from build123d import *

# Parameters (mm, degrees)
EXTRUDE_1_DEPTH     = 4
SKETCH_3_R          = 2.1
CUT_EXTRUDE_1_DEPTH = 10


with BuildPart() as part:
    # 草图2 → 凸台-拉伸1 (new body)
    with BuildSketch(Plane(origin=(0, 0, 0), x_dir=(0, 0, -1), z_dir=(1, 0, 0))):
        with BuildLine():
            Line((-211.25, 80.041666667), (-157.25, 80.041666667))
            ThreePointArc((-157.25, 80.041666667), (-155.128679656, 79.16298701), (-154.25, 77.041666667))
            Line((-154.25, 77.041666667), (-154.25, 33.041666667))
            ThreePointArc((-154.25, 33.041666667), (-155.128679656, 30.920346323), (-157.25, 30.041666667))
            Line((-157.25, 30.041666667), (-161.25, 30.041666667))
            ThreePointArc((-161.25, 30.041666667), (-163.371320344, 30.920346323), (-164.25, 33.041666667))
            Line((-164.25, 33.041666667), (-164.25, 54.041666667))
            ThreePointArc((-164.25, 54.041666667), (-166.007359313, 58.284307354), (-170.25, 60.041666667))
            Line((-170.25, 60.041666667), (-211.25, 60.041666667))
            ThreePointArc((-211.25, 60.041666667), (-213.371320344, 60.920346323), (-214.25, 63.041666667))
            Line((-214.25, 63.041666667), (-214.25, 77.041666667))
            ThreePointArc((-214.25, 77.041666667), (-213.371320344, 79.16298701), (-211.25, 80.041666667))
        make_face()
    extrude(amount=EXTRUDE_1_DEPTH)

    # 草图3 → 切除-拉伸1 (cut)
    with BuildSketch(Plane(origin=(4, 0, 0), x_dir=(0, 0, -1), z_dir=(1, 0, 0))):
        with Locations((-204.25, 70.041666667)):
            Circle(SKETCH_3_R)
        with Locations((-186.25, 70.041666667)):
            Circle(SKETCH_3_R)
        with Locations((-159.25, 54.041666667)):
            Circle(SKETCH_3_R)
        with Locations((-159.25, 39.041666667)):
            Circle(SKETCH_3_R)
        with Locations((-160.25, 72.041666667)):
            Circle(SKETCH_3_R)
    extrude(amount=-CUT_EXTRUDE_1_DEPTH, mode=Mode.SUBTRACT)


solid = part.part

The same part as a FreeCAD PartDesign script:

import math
import FreeCAD as App
import Part
import Sketcher
from FreeCAD import Vector

doc = App.newDocument("Part")
body = doc.addObject("PartDesign::Body", "Body")

sketch1 = body.newObject("Sketcher::SketchObject", "Sketch")
sketch1.AttachmentSupport = (doc.getObject("YZ_Plane"), [""])
sketch1.MapMode = "FlatFace"
sketch1.addGeometry(Part.LineSegment(Vector(80, 157.2, 0), Vector(80, 211.2, 0)), False)
sketch1.addGeometry(Part.ArcOfCircle(Part.Circle(Vector(77, 211.2, 0), Vector(0, 0, 1), 3), math.radians(0), math.radians(90)), False)
sketch1.addGeometry(Part.LineSegment(Vector(77, 214.2, 0), Vector(63, 214.2, 0)), False)
sketch1.addGeometry(Part.ArcOfCircle(Part.Circle(Vector(63, 211.3, 0), Vector(0, 0, 1), 3), math.radians(90), math.radians(180)), False)
sketch1.addGeometry(Part.LineSegment(Vector(60, 211.2, 0), Vector(60, 170.2, 0)), False)
sketch1.addGeometry(Part.ArcOfCircle(Part.Circle(Vector(54, 170.2, 0), Vector(0, 0, 1), 6), math.radians(-90), math.radians(0)), False)
sketch1.addGeometry(Part.LineSegment(Vector(54, 164.2, 0), Vector(33, 164.2, 0)), False)
sketch1.addGeometry(Part.ArcOfCircle(Part.Circle(Vector(33, 161.3, 0), Vector(0, 0, 1), 3), math.radians(90), math.radians(180)), False)
sketch1.addGeometry(Part.LineSegment(Vector(30, 161.2, 0), Vector(30, 157.2, 0)), False)
sketch1.addGeometry(Part.ArcOfCircle(Part.Circle(Vector(33, 157.2, 0), Vector(0, 0, 1), 3), math.radians(180), math.radians(270)), False)
sketch1.addGeometry(Part.LineSegment(Vector(33, 154.2, 0), Vector(77, 154.2, 0)), False)
sketch1.addGeometry(Part.ArcOfCircle(Part.Circle(Vector(77, 157.2, 0), Vector(0, 0, 1), 3), math.radians(-90), math.radians(0)), False)
sketch1.addConstraint(Sketcher.Constraint("Tangent", 0, 2, 1, 1))
sketch1.addConstraint(Sketcher.Constraint("Tangent", 1, 2, 2, 1))
sketch1.addConstraint(Sketcher.Constraint("Tangent", 2, 2, 3, 1))
sketch1.addConstraint(Sketcher.Constraint("Tangent", 3, 2, 4, 1))
sketch1.addConstraint(Sketcher.Constraint("Tangent", 4, 2, 5, 2))
sketch1.addConstraint(Sketcher.Constraint("Tangent", 5, 1, 6, 1))
sketch1.addConstraint(Sketcher.Constraint("Tangent", 6, 2, 7, 1))
sketch1.addConstraint(Sketcher.Constraint("Tangent", 7, 2, 8, 1))
sketch1.addConstraint(Sketcher.Constraint("Tangent", 8, 2, 9, 1))
sketch1.addConstraint(Sketcher.Constraint("Tangent", 9, 2, 10, 1))
sketch1.addConstraint(Sketcher.Constraint("Tangent", 10, 2, 11, 1))
sketch1.addConstraint(Sketcher.Constraint("Tangent", 11, 2, 0, 1))
sketch1.addConstraint(Sketcher.Constraint("Vertical", 0))
sketch1.addConstraint(Sketcher.Constraint("Horizontal", 2))
sketch1.addConstraint(Sketcher.Constraint("Vertical", 4))
sketch1.addConstraint(Sketcher.Constraint("Horizontal", 6))
sketch1.addConstraint(Sketcher.Constraint("Vertical", 8))
sketch1.addConstraint(Sketcher.Constraint("Horizontal", 10))
sketch1.addConstraint(Sketcher.Constraint("Equal", 1, 3))
sketch1.addConstraint(Sketcher.Constraint("Equal", 3, 7))
sketch1.addConstraint(Sketcher.Constraint("Equal", 7, 9))
sketch1.addConstraint(Sketcher.Constraint("Equal", 9, 11))
sketch1.addConstraint(Sketcher.Constraint("Radius", 1, 3.0))
sketch1.addConstraint(Sketcher.Constraint("Radius", 5, 6.0))
sketch1.addConstraint(Sketcher.Constraint("DistanceX", 2, 2, 2, 1, 14.0))
sketch1.addConstraint(Sketcher.Constraint("DistanceX", 6, 2, 6, 1, 21.0))
sketch1.addConstraint(Sketcher.Constraint("DistanceY", 0, 1, 0, 2, 54.0))
sketch1.addConstraint(Sketcher.Constraint("DistanceY", 4, 2, 4, 1, 41.0))
sketch1.addConstraint(Sketcher.Constraint("DistanceY", -1, 1, 1, 3, 211.25))
sketch1.addConstraint(Sketcher.Constraint("DistanceX", -1, 1, 1, 3, 77.041667))
pad1 = body.newObject("PartDesign::Pad", "Pad")
pad1.Profile = sketch1
pad1.Length = 4

sketch2 = body.newObject("Sketcher::SketchObject", "Sketch001")
sketch2.AttachmentSupport = (doc.getObject("YZ_Plane"), [""])
sketch2.MapMode = "FlatFace"
sketch2.AttachmentOffset = App.Placement(Vector(0, 0, 4), App.Rotation())
sketch2.addGeometry(Part.Circle(Vector(70, 204.2, 0), Vector(0, 0, 1), 2.1), False)
sketch2.addGeometry(Part.Circle(Vector(70, 186.2, 0), Vector(0, 0, 1), 2.1), False)
sketch2.addGeometry(Part.Circle(Vector(54, 159.2, 0), Vector(0, 0, 1), 2.1), False)
sketch2.addGeometry(Part.Circle(Vector(39, 159.2, 0), Vector(0, 0, 1), 2.1), False)
sketch2.addGeometry(Part.Circle(Vector(72, 160.2, 0), Vector(0, 0, 1), 2.1), False)
sketch2.addConstraint(Sketcher.Constraint("Equal", 0, 1))
sketch2.addConstraint(Sketcher.Constraint("Equal", 1, 2))
sketch2.addConstraint(Sketcher.Constraint("Equal", 2, 3))
sketch2.addConstraint(Sketcher.Constraint("Equal", 3, 4))
sketch2.addConstraint(Sketcher.Constraint("Horizontal", 2, 3, 3, 3))
sketch2.addConstraint(Sketcher.Constraint("Vertical", 0, 3, 1, 3))
sketch2.addConstraint(Sketcher.Constraint("Diameter", 0, 4.2))
sketch2.addConstraint(Sketcher.Constraint("DistanceY", 1, 3, 0, 3, 18.0))
sketch2.addConstraint(Sketcher.Constraint("DistanceX", 2, 3, 1, 3, 16.0))
sketch2.addConstraint(Sketcher.Constraint("DistanceY", 2, 3, 1, 3, 27.0))
sketch2.addConstraint(Sketcher.Constraint("DistanceX", 3, 3, 2, 3, 15.0))
sketch2.addConstraint(Sketcher.Constraint("DistanceX", 2, 3, 4, 3, 18.0))
sketch2.addConstraint(Sketcher.Constraint("DistanceY", 2, 3, 4, 3, 1.0))
sketch2.addConstraint(Sketcher.Constraint("DistanceY", -1, 1, 0, 3, 204.25))
sketch2.addConstraint(Sketcher.Constraint("DistanceX", -1, 1, 0, 3, 70.041667))
pocket1 = body.newObject("PartDesign::Pocket", "Pocket")
pocket1.Profile = sketch2
pocket1.Length = 10

doc.recompute()
